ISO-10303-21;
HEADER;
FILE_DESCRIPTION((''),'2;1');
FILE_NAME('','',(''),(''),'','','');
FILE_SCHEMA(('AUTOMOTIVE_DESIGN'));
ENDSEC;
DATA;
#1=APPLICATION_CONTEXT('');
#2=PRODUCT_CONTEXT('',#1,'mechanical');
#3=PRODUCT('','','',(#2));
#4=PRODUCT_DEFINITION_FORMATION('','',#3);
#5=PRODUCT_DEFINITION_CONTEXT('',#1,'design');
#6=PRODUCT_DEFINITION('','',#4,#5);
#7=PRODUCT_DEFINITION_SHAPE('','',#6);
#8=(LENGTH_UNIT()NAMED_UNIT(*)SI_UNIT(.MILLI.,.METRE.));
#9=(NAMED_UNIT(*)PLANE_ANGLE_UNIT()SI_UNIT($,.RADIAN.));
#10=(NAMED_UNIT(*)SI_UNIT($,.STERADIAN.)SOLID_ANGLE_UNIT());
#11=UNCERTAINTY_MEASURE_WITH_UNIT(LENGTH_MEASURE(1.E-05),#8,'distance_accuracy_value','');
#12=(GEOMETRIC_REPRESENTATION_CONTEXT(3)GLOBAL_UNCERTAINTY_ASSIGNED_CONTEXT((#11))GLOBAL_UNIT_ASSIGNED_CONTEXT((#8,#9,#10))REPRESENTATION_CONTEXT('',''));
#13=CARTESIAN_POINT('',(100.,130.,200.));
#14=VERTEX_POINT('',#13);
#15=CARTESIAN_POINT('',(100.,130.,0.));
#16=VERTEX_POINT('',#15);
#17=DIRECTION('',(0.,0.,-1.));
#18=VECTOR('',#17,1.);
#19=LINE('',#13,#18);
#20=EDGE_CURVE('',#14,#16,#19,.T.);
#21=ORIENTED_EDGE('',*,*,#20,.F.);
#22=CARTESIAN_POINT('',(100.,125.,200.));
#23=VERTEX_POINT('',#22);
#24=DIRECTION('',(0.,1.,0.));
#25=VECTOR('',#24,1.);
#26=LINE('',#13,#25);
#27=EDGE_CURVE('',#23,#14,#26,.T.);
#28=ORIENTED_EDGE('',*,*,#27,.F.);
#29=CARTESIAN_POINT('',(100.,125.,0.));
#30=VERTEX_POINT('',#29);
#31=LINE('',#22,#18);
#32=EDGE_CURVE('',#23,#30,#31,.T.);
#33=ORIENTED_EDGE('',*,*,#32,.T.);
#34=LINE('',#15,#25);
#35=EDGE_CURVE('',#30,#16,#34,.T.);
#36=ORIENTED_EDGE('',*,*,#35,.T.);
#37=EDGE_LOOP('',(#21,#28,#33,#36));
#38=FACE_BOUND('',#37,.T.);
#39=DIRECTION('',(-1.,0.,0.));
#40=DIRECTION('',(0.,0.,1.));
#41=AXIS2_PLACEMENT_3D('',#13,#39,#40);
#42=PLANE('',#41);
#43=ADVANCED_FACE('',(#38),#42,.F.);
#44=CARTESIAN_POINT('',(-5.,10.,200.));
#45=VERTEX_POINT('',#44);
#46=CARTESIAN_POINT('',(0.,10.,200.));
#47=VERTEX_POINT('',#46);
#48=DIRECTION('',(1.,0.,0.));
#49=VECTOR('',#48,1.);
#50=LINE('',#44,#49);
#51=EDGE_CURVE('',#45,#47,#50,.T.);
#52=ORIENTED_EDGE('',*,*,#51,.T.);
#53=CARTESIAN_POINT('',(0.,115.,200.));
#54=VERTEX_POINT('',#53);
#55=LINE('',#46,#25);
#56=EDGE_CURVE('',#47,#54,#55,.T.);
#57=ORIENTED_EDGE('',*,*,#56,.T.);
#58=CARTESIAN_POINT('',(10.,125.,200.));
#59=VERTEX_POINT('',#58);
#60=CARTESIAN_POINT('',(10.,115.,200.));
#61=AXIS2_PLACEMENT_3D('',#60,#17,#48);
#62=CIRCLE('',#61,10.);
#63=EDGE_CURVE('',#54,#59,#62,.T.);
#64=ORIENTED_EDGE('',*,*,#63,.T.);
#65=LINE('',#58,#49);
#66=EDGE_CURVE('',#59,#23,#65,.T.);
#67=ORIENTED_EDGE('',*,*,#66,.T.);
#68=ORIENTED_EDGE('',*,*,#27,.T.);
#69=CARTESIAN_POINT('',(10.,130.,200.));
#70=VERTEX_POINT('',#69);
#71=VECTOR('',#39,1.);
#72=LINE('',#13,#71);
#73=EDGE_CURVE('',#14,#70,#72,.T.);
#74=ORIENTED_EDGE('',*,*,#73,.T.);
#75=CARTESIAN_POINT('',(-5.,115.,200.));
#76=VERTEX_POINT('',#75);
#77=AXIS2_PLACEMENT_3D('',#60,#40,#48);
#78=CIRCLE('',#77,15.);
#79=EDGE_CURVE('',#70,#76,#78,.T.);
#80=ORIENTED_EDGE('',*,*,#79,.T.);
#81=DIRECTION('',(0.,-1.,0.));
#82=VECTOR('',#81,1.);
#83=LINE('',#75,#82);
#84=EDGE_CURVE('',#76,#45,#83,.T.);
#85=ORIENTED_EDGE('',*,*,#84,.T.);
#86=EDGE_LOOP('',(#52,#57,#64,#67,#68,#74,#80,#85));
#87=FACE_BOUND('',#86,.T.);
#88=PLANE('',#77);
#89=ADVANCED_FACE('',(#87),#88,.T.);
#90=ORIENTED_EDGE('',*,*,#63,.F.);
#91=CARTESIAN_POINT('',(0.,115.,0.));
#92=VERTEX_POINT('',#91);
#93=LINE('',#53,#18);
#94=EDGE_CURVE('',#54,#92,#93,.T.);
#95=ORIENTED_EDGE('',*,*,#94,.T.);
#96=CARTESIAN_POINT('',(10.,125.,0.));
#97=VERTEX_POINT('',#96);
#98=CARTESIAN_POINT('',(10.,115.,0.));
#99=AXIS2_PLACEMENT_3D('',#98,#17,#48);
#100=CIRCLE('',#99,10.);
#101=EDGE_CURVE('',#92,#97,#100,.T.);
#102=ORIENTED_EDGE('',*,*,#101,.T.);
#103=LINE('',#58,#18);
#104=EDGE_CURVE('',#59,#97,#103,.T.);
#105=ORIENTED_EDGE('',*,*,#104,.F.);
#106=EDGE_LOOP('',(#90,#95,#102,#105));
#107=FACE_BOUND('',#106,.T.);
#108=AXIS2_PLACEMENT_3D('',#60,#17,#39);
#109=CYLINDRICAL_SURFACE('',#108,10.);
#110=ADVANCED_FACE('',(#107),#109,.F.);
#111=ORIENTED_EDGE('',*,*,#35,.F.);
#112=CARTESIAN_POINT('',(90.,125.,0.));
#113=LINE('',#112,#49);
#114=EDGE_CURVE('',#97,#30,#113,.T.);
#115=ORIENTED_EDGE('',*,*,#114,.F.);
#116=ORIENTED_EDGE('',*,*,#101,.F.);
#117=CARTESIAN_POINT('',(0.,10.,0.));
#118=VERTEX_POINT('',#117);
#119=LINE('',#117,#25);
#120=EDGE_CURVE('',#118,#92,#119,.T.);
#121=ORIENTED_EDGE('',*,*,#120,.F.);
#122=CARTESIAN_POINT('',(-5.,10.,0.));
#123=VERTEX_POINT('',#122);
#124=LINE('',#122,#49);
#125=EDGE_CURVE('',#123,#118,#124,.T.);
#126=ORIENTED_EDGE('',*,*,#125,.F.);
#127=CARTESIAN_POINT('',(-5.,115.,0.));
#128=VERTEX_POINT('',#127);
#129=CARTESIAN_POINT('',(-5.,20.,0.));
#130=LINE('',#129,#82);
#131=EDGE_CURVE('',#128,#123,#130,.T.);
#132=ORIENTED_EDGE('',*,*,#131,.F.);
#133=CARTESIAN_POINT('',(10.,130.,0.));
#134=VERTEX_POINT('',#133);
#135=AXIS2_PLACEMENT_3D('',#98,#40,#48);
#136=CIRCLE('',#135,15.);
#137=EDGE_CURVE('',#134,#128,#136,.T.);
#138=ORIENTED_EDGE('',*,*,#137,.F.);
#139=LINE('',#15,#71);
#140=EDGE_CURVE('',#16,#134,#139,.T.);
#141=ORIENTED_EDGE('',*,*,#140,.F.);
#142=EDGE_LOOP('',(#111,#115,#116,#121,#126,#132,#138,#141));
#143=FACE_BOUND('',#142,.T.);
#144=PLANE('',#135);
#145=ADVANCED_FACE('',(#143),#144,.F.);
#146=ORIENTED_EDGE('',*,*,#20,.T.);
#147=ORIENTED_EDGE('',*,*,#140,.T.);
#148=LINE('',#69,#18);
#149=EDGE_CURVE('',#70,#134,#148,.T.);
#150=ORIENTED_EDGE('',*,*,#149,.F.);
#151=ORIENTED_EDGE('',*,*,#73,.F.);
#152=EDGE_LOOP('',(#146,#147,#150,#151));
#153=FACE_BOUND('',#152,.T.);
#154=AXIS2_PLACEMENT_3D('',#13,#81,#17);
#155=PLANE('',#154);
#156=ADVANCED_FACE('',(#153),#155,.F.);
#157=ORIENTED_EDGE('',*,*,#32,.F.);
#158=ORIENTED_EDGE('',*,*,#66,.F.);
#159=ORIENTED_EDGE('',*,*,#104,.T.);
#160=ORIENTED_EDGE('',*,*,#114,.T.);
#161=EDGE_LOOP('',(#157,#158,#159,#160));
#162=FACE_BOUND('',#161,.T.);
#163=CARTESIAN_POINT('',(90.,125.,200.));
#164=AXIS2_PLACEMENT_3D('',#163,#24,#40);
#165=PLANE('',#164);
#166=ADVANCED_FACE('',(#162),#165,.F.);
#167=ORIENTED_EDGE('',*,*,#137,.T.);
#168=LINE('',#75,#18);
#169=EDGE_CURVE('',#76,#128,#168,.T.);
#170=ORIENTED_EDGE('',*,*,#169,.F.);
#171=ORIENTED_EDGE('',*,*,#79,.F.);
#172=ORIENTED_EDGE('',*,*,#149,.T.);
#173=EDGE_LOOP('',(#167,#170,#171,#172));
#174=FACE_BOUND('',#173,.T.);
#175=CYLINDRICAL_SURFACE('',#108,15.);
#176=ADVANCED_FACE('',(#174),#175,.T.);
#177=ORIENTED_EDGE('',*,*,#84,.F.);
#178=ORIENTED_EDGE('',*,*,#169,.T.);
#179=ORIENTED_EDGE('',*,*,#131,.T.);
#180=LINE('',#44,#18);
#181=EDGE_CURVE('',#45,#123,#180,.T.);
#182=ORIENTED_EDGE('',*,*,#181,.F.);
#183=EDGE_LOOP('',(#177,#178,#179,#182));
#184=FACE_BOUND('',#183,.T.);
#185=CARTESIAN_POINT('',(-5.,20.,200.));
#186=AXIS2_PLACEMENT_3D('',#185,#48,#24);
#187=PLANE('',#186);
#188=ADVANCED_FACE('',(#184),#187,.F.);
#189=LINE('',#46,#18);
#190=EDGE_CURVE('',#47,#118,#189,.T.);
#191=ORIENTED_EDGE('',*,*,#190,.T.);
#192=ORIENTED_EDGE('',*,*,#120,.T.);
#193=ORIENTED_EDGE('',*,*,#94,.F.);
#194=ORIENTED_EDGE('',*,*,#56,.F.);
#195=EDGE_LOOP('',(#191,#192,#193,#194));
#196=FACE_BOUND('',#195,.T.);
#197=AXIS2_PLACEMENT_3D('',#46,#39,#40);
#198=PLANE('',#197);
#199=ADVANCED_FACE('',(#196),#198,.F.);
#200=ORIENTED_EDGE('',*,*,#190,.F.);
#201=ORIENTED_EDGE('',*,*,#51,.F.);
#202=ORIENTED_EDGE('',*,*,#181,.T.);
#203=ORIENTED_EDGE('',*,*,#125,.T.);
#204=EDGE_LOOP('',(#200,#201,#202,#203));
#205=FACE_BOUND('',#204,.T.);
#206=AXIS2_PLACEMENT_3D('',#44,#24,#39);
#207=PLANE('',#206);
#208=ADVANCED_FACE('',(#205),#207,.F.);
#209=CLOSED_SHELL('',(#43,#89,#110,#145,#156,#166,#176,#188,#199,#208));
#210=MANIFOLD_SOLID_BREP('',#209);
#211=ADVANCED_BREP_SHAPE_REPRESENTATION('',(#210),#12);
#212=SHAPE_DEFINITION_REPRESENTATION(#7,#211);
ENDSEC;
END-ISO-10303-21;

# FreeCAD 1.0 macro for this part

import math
import FreeCAD as App
import Part
import Sketcher

doc = App.newDocument("Part")
body = doc.addObject("PartDesign::Body", "Body")

sketch1 = doc.addObject("Sketcher::SketchObject", "Sketch")
body.addObject(sketch1)
sketch1.AttachmentSupport = (doc.XY_Plane, [""])
sketch1.MapMode = "FlatFace"
sketch1.addGeometry(Part.LineSegment(App.Vector(0, 10, 0), App.Vector(0, 115, 0)), False)
sketch1.addGeometry(Part.ArcOfCircle(Part.Circle(App.Vector(10, 115, 0), App.Vector(0, 0, 1), 10), math.radians(90), math.radians(180)), False)
sketch1.addGeometry(Part.LineSegment(App.Vector(10, 125, 0), App.Vector(100, 125, 0)), False)
sketch1.addGeometry(Part.LineSegment(App.Vector(100, 125, 0), App.Vector(100, 130, 0)), False)
sketch1.addGeometry(Part.LineSegment(App.Vector(100, 130, 0), App.Vector(10, 130, 0)), False)
sketch1.addGeometry(Part.ArcOfCircle(Part.Circle(App.Vector(10, 115, 0), App.Vector(0, 0, 1), 15), math.radians(90), math.radians(180)), False)
sketch1.addGeometry(Part.LineSegment(App.Vector(-5, 115, 0), App.Vector(-5, 10, 0)), False)
sketch1.addGeometry(Part.LineSegment(App.Vector(-5, 10, 0), App.Vector(0, 10, 0)), False)
sketch1.addConstraint(Sketcher.Constraint("Tangent", 0, 2, 1, 2))
sketch1.addConstraint(Sketcher.Constraint("Tangent", 1, 1, 2, 1))
sketch1.addConstraint(Sketcher.Constraint("Coincident", 2, 2, 3, 1))
sketch1.addConstraint(Sketcher.Constraint("Coincident", 3, 2, 4, 1))
sketch1.addConstraint(Sketcher.Constraint("Tangent", 4, 2, 5, 1))
sketch1.addConstraint(Sketcher.Constraint("Tangent", 5, 2, 6, 1))
sketch1.addConstraint(Sketcher.Constraint("Coincident", 6, 2, 7, 1))
sketch1.addConstraint(Sketcher.Constraint("Coincident", 7, 2, 0, 1))
sketch1.addConstraint(Sketcher.Constraint("Vertical", 0))
sketch1.addConstraint(Sketcher.Constraint("Horizontal", 2))
sketch1.addConstraint(Sketcher.Constraint("Vertical", 3))
sketch1.addConstraint(Sketcher.Constraint("Horizontal", 4))
sketch1.addConstraint(Sketcher.Constraint("Vertical", 6))
sketch1.addConstraint(Sketcher.Constraint("Horizontal", 7))
sketch1.addConstraint(Sketcher.Constraint("Coincident", 5, 3, 1, 3))
sketch1.addConstraint(Sketcher.Constraint("PointOnObject", 0, 2, -2))
sketch1.addConstraint(Sketcher.Constraint("Radius", 1, 10.0))
sketch1.addConstraint(Sketcher.Constraint("Radius", 5, 15.0))
sketch1.addConstraint(Sketcher.Constraint("DistanceX", 2, 1, 2, 2, 90.0))
sketch1.addConstraint(Sketcher.Constraint("DistanceY", 0, 1, 0, 2, 105.0))
sketch1.addConstraint(Sketcher.Constraint("DistanceY", -1, 1, 1, 3, 115.0))
pad1 = doc.addObject("PartDesign::Pad", "Pad")
body.addObject(pad1)
pad1.Profile = sketch1
pad1.Length = 200

doc.recompute()
